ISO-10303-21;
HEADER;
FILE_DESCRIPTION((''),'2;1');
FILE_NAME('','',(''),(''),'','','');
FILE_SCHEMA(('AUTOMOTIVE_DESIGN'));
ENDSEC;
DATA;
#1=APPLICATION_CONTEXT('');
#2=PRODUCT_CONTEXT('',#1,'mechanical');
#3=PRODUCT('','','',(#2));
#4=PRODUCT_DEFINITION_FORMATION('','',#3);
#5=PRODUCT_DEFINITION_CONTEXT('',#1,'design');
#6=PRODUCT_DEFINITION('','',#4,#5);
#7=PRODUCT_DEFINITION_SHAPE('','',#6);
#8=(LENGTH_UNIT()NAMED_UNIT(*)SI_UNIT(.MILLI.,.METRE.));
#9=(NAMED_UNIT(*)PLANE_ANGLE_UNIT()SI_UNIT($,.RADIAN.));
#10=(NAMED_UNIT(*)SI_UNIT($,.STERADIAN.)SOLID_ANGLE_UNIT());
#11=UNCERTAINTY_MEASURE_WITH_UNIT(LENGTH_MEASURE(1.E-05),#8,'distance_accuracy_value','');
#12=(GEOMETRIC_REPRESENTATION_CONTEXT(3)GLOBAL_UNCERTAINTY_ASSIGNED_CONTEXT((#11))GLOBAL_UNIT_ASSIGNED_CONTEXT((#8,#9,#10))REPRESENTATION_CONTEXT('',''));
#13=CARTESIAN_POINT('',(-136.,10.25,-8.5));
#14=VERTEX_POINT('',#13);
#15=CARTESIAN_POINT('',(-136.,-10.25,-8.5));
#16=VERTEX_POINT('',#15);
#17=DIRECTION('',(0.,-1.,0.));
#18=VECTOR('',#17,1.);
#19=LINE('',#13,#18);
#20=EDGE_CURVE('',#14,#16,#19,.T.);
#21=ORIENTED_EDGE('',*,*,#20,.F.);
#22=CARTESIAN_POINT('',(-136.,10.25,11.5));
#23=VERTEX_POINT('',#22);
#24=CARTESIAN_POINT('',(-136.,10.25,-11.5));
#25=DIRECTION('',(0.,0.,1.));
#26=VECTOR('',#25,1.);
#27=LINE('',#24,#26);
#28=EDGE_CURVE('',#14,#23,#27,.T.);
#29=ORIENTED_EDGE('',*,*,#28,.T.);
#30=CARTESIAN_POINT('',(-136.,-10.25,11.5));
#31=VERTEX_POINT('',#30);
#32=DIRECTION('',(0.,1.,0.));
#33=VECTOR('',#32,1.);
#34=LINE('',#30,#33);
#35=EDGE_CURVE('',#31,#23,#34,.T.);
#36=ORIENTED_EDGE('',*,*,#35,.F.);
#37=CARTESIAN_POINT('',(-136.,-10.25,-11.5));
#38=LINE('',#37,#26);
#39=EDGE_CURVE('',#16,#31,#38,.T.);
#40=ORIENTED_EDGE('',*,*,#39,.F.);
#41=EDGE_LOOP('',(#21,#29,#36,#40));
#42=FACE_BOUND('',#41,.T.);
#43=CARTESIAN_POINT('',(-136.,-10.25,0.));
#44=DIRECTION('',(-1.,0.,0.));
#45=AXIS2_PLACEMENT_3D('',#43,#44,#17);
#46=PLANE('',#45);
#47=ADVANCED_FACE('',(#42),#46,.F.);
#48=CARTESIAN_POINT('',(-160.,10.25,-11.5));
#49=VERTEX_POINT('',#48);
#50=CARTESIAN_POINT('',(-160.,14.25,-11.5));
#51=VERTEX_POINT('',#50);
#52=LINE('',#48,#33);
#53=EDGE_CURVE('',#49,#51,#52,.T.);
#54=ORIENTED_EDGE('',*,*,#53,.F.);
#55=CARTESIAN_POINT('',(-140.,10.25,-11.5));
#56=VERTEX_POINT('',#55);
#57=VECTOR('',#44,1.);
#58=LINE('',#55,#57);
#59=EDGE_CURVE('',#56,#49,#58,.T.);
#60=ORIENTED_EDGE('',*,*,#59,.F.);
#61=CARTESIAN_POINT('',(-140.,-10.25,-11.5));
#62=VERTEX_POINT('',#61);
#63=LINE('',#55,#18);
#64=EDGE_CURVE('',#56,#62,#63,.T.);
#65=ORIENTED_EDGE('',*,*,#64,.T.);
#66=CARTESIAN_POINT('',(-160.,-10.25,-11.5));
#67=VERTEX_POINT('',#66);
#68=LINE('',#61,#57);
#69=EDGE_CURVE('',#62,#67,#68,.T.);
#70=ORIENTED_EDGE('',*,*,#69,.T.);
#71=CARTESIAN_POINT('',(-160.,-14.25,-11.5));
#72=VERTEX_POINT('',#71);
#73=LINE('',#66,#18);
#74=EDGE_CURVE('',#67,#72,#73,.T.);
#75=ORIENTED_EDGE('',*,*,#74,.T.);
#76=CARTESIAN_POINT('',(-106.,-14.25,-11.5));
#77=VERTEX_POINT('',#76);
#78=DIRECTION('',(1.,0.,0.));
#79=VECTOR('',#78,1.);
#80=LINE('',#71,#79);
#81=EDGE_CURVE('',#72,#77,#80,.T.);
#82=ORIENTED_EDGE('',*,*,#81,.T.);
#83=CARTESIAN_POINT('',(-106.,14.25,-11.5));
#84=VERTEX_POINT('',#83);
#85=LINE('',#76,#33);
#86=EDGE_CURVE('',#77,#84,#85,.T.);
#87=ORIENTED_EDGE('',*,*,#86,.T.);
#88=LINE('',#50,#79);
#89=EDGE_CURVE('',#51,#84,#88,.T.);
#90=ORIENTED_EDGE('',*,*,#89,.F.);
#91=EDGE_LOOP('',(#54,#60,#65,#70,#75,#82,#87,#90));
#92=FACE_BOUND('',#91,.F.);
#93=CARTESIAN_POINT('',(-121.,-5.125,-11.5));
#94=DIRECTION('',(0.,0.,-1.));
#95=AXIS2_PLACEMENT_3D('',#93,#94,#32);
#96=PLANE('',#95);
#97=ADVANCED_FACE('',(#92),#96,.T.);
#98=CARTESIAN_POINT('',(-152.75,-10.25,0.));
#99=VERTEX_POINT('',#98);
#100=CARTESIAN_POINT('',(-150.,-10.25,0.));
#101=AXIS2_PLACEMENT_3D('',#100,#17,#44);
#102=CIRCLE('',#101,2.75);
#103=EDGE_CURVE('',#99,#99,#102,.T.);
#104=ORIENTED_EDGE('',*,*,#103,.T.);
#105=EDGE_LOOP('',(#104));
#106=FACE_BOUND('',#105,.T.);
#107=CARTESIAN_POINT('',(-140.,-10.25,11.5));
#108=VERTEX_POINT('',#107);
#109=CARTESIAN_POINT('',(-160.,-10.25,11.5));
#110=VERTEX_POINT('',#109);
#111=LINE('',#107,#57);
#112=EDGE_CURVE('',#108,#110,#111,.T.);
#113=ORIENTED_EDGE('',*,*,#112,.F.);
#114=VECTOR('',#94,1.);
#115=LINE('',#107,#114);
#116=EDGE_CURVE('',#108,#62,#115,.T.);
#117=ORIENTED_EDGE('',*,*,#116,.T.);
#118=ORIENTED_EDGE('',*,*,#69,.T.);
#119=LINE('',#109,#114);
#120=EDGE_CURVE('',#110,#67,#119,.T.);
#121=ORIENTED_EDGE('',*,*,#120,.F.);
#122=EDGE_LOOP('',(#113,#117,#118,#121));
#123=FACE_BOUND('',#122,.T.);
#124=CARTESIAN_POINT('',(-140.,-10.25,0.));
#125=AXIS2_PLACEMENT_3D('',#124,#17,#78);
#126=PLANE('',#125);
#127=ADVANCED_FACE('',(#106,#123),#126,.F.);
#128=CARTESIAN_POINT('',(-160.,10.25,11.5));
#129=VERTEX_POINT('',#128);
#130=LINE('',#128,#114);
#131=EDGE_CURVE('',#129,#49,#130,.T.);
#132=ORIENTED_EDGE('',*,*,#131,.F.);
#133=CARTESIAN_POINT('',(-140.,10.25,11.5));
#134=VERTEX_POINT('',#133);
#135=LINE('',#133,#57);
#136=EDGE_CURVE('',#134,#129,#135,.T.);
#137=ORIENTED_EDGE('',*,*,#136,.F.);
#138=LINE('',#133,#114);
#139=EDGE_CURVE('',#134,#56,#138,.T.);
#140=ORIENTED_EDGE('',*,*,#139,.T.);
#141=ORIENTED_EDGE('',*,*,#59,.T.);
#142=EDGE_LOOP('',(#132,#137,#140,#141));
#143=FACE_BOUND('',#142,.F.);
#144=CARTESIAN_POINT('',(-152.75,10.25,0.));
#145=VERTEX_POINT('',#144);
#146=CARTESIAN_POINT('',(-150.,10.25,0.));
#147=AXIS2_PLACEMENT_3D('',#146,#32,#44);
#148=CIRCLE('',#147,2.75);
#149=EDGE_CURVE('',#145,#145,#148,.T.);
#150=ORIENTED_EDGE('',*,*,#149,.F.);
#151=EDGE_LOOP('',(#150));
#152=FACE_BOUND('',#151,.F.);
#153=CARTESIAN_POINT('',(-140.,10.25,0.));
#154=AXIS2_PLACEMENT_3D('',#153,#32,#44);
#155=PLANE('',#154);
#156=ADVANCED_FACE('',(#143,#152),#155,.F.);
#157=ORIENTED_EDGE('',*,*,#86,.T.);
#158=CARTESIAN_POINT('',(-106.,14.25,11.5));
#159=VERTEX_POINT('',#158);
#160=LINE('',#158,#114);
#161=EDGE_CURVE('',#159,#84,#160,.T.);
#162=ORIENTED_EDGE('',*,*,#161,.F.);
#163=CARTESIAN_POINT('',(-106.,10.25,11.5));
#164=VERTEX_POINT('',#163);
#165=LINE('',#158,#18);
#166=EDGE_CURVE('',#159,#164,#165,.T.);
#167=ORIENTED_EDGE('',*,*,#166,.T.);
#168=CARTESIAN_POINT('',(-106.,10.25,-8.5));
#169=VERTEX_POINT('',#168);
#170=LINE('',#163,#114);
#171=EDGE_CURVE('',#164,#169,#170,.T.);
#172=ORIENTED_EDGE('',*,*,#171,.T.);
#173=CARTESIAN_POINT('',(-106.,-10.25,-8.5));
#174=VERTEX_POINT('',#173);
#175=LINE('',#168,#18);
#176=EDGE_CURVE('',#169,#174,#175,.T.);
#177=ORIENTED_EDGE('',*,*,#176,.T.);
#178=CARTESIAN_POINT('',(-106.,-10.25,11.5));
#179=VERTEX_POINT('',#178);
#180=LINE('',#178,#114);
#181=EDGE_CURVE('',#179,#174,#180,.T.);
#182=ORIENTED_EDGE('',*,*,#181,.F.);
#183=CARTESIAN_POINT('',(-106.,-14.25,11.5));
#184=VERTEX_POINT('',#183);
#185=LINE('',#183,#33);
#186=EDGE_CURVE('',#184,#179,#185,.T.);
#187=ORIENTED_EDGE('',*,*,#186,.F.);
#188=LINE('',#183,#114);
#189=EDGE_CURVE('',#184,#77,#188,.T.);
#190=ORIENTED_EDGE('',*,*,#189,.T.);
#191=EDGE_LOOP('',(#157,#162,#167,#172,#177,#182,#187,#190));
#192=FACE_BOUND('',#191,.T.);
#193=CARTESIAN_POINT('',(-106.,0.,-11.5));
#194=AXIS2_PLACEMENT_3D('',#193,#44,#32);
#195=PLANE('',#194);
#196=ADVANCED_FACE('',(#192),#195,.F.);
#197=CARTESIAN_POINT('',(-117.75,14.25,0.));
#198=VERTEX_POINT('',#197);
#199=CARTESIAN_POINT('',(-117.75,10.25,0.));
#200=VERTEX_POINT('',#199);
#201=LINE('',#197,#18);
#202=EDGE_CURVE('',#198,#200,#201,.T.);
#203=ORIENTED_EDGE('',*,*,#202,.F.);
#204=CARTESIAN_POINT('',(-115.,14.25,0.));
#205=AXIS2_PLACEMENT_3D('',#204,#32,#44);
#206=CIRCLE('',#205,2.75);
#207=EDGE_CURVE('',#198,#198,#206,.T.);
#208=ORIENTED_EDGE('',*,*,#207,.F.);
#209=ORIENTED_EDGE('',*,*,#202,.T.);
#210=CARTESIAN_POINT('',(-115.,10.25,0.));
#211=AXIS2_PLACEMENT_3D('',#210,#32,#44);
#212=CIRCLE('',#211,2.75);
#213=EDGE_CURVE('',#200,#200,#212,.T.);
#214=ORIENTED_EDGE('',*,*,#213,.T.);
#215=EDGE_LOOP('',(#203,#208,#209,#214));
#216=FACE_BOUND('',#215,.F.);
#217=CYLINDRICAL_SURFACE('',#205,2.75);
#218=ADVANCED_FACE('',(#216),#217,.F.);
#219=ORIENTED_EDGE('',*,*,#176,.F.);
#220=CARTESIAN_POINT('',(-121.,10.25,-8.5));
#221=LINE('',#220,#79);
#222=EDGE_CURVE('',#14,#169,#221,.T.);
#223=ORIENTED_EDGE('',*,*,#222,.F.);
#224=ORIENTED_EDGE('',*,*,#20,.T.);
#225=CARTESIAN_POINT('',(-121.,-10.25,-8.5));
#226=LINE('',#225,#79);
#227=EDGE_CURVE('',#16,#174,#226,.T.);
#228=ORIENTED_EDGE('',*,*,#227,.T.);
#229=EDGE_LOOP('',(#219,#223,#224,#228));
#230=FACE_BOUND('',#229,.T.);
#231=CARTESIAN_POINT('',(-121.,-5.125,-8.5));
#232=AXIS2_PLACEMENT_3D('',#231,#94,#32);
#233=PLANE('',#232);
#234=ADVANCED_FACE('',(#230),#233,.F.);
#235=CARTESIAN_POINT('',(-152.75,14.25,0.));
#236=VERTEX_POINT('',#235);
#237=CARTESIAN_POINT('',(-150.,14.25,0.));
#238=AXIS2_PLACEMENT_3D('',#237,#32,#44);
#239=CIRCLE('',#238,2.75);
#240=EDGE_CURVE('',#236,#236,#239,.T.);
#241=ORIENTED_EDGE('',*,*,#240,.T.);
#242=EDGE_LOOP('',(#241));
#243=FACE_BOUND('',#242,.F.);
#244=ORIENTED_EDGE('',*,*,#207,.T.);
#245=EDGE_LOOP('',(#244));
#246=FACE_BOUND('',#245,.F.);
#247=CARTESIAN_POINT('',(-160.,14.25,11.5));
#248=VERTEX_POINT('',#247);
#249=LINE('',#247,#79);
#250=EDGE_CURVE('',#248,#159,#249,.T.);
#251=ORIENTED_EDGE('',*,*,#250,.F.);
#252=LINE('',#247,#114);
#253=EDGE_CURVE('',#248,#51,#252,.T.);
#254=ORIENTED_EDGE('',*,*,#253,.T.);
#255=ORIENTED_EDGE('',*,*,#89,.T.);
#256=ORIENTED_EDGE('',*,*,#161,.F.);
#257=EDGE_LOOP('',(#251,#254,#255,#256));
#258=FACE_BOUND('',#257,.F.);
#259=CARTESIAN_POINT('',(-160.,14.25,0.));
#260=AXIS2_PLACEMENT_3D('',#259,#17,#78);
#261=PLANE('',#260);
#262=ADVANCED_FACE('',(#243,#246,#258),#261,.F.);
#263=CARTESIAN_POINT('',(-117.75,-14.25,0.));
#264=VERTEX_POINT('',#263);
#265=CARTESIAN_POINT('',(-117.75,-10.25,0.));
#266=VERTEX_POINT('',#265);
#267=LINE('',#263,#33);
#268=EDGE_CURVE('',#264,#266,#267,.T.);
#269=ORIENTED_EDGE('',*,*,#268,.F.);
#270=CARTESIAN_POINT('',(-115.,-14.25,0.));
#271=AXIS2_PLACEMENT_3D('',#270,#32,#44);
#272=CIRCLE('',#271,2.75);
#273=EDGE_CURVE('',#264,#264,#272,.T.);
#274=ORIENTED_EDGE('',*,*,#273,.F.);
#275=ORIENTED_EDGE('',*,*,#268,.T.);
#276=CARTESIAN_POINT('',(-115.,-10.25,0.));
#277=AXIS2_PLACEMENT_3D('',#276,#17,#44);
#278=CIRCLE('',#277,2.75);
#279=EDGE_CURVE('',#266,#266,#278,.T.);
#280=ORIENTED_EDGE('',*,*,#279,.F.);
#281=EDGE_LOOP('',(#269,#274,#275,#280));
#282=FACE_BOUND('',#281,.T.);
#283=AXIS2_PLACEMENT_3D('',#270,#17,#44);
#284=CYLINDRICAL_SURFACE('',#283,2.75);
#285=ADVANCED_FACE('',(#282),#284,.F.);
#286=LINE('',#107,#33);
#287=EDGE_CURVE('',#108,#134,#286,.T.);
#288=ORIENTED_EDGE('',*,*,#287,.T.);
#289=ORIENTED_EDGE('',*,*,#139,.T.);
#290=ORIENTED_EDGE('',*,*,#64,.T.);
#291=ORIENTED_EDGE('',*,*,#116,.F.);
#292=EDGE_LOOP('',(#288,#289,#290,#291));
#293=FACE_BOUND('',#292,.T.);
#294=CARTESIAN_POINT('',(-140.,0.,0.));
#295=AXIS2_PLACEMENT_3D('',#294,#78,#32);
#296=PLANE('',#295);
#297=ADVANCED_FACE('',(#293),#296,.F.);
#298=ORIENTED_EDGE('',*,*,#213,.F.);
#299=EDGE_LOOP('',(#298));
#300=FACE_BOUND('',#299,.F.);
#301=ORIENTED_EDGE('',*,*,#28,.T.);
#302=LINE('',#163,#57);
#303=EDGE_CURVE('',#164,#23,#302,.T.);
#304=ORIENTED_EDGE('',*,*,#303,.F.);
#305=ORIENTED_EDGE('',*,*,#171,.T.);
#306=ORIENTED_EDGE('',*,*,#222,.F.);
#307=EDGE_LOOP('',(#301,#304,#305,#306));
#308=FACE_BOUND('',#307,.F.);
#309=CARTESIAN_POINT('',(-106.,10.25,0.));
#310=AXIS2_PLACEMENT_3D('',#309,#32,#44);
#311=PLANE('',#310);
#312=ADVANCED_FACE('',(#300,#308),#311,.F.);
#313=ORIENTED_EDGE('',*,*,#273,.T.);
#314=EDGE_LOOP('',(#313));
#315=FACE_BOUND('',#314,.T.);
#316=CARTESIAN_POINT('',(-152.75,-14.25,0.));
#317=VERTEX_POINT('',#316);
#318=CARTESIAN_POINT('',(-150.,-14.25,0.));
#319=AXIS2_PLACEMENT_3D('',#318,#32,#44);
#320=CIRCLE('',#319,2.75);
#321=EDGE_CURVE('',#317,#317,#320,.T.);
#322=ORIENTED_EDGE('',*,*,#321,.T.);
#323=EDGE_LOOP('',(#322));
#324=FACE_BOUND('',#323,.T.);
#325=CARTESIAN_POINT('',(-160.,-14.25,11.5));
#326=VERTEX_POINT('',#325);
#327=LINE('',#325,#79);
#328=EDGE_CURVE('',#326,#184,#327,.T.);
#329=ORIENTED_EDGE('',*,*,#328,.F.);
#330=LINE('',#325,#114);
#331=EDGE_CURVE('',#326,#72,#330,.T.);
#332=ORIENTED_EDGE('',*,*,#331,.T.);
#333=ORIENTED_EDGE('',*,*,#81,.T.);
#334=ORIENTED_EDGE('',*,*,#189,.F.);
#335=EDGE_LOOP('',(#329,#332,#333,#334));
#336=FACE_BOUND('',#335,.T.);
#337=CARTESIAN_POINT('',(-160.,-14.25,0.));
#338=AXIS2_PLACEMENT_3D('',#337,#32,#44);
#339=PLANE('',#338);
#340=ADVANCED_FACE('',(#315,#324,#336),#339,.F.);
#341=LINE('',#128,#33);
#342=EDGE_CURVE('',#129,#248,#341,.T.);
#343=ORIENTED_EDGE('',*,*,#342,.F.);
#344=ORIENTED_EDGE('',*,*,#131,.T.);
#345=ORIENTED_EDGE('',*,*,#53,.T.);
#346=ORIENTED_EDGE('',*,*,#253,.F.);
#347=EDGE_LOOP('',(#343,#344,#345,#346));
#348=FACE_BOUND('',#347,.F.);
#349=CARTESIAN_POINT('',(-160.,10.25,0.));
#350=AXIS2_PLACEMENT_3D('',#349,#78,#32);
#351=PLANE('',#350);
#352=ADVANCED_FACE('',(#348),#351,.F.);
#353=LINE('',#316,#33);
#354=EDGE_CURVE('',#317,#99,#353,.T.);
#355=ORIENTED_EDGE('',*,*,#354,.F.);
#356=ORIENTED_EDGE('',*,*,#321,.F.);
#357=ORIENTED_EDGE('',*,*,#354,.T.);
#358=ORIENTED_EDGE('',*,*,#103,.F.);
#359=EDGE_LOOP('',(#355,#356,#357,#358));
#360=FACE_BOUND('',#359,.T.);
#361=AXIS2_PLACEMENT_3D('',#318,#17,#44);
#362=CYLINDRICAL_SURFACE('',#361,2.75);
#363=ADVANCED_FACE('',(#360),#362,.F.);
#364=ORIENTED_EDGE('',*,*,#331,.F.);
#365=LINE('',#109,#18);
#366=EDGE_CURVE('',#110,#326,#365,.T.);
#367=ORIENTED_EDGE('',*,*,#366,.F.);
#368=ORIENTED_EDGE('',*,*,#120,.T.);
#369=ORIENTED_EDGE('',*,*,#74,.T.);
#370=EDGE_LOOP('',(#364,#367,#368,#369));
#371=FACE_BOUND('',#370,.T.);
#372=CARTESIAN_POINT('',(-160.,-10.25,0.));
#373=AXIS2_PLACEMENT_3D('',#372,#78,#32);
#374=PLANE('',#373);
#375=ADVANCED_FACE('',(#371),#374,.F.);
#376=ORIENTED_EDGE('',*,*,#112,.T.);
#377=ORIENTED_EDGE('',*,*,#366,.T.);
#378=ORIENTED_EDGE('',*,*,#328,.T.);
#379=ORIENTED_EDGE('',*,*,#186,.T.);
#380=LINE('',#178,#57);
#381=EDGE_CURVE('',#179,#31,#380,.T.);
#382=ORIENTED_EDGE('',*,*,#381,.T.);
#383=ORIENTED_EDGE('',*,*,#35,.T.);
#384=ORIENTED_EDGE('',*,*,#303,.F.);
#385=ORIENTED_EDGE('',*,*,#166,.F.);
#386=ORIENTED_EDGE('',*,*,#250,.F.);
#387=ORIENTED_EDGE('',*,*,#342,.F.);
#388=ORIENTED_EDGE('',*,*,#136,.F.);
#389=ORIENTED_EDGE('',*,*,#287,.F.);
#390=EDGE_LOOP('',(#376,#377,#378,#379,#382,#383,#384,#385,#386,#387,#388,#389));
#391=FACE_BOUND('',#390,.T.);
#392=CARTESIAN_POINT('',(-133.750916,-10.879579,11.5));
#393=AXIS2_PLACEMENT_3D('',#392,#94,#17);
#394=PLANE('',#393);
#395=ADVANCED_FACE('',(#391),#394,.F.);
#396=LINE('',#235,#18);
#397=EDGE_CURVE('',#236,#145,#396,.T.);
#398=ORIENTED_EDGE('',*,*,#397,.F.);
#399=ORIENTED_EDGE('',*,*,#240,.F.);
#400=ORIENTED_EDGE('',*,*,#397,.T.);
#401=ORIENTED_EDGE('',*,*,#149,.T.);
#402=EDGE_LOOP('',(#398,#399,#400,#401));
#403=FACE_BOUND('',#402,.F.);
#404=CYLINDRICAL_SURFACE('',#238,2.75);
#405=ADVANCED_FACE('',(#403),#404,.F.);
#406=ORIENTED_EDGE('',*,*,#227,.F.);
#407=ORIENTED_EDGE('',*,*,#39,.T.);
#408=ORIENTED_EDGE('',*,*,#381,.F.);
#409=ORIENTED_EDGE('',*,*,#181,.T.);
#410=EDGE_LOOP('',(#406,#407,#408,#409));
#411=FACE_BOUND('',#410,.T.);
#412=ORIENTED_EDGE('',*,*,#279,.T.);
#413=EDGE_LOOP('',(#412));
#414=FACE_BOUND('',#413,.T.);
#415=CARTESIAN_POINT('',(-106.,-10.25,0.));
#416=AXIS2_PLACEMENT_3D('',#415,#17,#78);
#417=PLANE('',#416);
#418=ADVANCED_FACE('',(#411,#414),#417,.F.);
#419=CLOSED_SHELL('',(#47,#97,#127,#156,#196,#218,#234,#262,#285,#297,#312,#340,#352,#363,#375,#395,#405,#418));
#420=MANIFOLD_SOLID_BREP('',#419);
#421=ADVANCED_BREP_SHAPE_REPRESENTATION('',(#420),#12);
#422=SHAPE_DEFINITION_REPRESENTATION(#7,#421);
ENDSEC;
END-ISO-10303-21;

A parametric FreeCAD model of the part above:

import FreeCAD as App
import Part
import Sketcher

V = App.Vector

doc = App.newDocument("Part")
body = doc.addObject("PartDesign::Body", "Body")

# Sketch on XY plane
sketch1 = body.newObject("Sketcher::SketchObject", "Sketch")
sketch1.AttachmentSupport = (doc.getObject("XY_Plane"), [""])
sketch1.MapMode = "FlatFace"
sketch1.addGeometry([
    Part.LineSegment(V(10.2, 0, 0), V(0, 0, 0)),  # 0
    Part.LineSegment(V(0, 0, 0), V(0, -4, 0)),  # 1
    Part.LineSegment(V(0, -4, 0), V(10.2, -4, 0)),  # 2
    Part.LineSegment(V(10.2, -4, 0), V(10.2, -34, 0)),  # 3
    Part.LineSegment(V(10.2, -34, 0), V(14.2, -34, 0)),  # 4
    Part.LineSegment(V(14.2, -34, 0), V(14.2, 20, 0)),  # 5
    Part.LineSegment(V(14.2, 20, 0), V(10.2, 20, 0)),  # 6
    Part.LineSegment(V(10.2, 20, 0), V(10.2, 0, 0)),  # 7
], False)
sketch1.addConstraint([
    Sketcher.Constraint("Coincident", 0, 2, 1, 1),
    Sketcher.Constraint("Coincident", 1, 2, 2, 1),
    Sketcher.Constraint("Coincident", 2, 2, 3, 1),
    Sketcher.Constraint("Coincident", 3, 2, 4, 1),
    Sketcher.Constraint("Coincident", 4, 2, 5, 1),
    Sketcher.Constraint("Coincident", 5, 2, 6, 1),
    Sketcher.Constraint("Coincident", 6, 2, 7, 1),
    Sketcher.Constraint("Coincident", 7, 2, 0, 1),
    Sketcher.Constraint("Horizontal", 0),
    Sketcher.Constraint("Vertical", 1),
    Sketcher.Constraint("Horizontal", 2),
    Sketcher.Constraint("Vertical", 3),
    Sketcher.Constraint("Horizontal", 4),
    Sketcher.Constraint("Vertical", 5),
    Sketcher.Constraint("Horizontal", 6),
    Sketcher.Constraint("Vertical", 7),
    Sketcher.Constraint("Coincident", 0, 2, -1, 1),
    Sketcher.Constraint("Vertical", 3, 2, 6, 2),
    Sketcher.Constraint("Equal", 6, 1),
    Sketcher.Constraint("DistanceX", 4, 1, 4, 2, 4.0),
    Sketcher.Constraint("DistanceY", 3, 2, 3, 1, 30.0),
    Sketcher.Constraint("DistanceY", 5, 1, 5, 2, 54.0),
    Sketcher.Constraint("DistanceX", 0, 2, 0, 1, 10.25),
])
pad1 = body.newObject("PartDesign::Pad", "Pad")
pad1.Profile = sketch1
pad1.Length = 23
pad1.Midplane = True

# Sketch on XY plane
sketch2 = body.newObject("Sketcher::SketchObject", "Sketch001")
sketch2.AttachmentSupport = (doc.getObject("XY_Plane"), [""])
sketch2.MapMode = "FlatFace"
sketch2.AttachmentOffset = App.Placement(V(0, 0, -11.5), App.Rotation())
sketch2.addGeometry([
    Part.LineSegment(V(0, -34, 0), V(0, -4, 0)),
    Part.LineSegment(V(0, -4, 0), V(10, -4, 0)),
    Part.LineSegment(V(10, -4, 0), V(10, -34, 0)),
    Part.LineSegment(V(10, -34, 0), V(0, -34, 0)),
], False)
sketch2.addConstraint([
    Sketcher.Constraint("Coincident", 0, 2, 1, 1),
    Sketcher.Constraint("Coincident", 1, 2, 2, 1),
    Sketcher.Constraint("Coincident", 2, 2, 3, 1),
    Sketcher.Constraint("Coincident", 3, 2, 0, 1),
    Sketcher.Constraint("Vertical", 0),
    Sketcher.Constraint("Horizontal", 1),
    Sketcher.Constraint("Vertical", 2),
    Sketcher.Constraint("Horizontal", 3),
    Sketcher.Constraint("PointOnObject", 0, 2, -2),
    Sketcher.Constraint("DistanceY", 0, 1, 0, 2, 30.0),
    Sketcher.Constraint("DistanceY", 0, 2, -1, 1, 4.0),
    Sketcher.Constraint("DistanceX", 1, 1, 1, 2, 10.25),
])
pad2 = body.newObject("PartDesign::Pad", "Pad001")
pad2.Profile = sketch2
pad2.Length = 3

# Sketch on YZ plane
sketch3 = body.newObject("Sketcher::SketchObject", "Sketch002")
sketch3.AttachmentSupport = (doc.getObject("YZ_Plane"), [""])
sketch3.MapMode = "FlatFace"
sketch3.AttachmentOffset = App.Placement(V(0, 0, 14.25), App.Rotation())
sketch3.addGeometry([
    Part.Circle(V(-25, 0, 0), V(0, 0, 1), 2.8),
    Part.Circle(V(10, 0, 0), V(0, 0, 1), 2.8),
], False)
sketch3.addConstraint([
    Sketcher.Constraint("Equal", 0, 1),
    Sketcher.Constraint("PointOnObject", 0, 3, -1),
    Sketcher.Constraint("PointOnObject", 1, 3, -1),
    Sketcher.Constraint("Diameter", 0, 5.5),
    Sketcher.Constraint("DistanceX", 0, 3, -1, 1, 25.0),
    Sketcher.Constraint("DistanceX", -1, 1, 1, 3, 10.0),
])
pocket1 = body.newObject("PartDesign::Pocket", "Pocket")
pocket1.Profile = sketch3
pocket1.Length = 5
doc.recompute()

mirrored = body.newObject("PartDesign::Mirrored", "Mirrored")
mirrored.Originals = [pad1, pad2, pocket1]
mirrored.MirrorPlane = (doc.getObject("YZ_Plane"), [""])
body.Tip = mirrored
body2 = doc.addObject("PartDesign::Body", "Body001")
doc.recompute()

body.Placement = App.Placement(V(-140, 0, 0), App.Rotation(V(0, 0, 1), 90))
boolean = body2.newObject("PartDesign::Boolean", "Boolean")
boolean.Type = "Fuse"
boolean.addObjects([body])

doc.recompute()
